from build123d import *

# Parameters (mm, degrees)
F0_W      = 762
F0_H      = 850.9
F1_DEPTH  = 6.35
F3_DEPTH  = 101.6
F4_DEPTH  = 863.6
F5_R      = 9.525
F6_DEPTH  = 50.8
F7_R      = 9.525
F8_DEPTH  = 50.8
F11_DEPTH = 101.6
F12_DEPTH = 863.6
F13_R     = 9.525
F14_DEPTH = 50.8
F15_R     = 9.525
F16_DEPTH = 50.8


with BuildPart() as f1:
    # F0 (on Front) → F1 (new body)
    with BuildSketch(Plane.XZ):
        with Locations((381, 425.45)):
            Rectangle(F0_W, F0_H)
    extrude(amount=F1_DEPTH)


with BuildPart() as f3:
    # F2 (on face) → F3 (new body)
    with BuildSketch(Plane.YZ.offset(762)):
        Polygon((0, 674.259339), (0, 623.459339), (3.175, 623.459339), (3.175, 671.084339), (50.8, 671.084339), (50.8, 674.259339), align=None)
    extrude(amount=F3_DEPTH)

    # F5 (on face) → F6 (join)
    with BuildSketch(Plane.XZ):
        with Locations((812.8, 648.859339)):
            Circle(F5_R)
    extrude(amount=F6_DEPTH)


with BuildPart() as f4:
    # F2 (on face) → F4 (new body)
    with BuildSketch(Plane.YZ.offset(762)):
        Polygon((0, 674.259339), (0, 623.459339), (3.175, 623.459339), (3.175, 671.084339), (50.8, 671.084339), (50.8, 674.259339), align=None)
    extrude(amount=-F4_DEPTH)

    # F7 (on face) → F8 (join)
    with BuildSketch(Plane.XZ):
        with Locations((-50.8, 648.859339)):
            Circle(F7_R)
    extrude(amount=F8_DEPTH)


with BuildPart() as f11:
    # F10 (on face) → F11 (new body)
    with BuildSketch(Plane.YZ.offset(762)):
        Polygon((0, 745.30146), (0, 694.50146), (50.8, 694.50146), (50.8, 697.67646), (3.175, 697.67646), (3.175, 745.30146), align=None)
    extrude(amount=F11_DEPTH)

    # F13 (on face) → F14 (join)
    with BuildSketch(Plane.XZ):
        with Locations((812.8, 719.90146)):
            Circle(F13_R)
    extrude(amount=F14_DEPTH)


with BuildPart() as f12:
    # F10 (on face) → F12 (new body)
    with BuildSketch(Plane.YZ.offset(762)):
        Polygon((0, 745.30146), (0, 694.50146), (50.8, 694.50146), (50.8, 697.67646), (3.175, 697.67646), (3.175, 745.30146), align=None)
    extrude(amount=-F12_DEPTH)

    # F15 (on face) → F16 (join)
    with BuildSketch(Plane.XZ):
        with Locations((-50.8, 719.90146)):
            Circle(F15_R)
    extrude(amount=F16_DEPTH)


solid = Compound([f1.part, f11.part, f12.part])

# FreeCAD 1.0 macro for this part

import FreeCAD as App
import Part
import Sketcher

V = App.Vector
Q = App.Units.Quantity

doc = App.newDocument("Part")
body = doc.addObject("PartDesign::Body", "Body")

sketch1 = doc.addObject("Sketcher::SketchObject", "Sketch")
body.addObject(sketch1)
sketch1.AttachmentSupport = (doc.XZ_Plane, [""])
sketch1.MapMode = "FlatFace"
sketch1.addGeometry(Part.LineSegment(V(0, 851, 0), V(0, 0, 0)), False)
sketch1.addGeometry(Part.LineSegment(V(0, 0, 0), V(762, 0, 0)), False)
sketch1.addGeometry(Part.LineSegment(V(762, 0, 0), V(762, 851, 0)), False)
sketch1.addGeometry(Part.LineSegment(V(762, 851, 0), V(0, 851, 0)), False)
sketch1.addConstraint(Sketcher.Constraint("Coincident", 0, 2, 1, 1))
sketch1.addConstraint(Sketcher.Constraint("Coincident", 1, 2, 2, 1))
sketch1.addConstraint(Sketcher.Constraint("Coincident", 2, 2, 3, 1))
sketch1.addConstraint(Sketcher.Constraint("Coincident", 3, 2, 0, 1))
sketch1.addConstraint(Sketcher.Constraint("Vertical", 0))
sketch1.addConstraint(Sketcher.Constraint("Horizontal", 1))
sketch1.addConstraint(Sketcher.Constraint("Vertical", 2))
sketch1.addConstraint(Sketcher.Constraint("Horizontal", 3))
sketch1.addConstraint(Sketcher.Constraint("Coincident", 0, 2, -1, 1))
sketch1.addConstraint(Sketcher.Constraint("DistanceX", 1, 1, 1, 2, Q("30 in")))
sketch1.addConstraint(Sketcher.Constraint("DistanceY", 0, 2, 0, 1, Q("33.5 in")))
pad1 = doc.addObject("PartDesign::Pad", "Pad")
body.addObject(pad1)
pad1.Profile = sketch1
pad1.Length = Q("0.25 in")
body2 = doc.addObject("PartDesign::Body", "Body001")

sketch2 = doc.addObject("Sketcher::SketchObject", "Sketch001")
body2.addObject(sketch2)
sketch2.AttachmentSupport = (doc.getObject("YZ_Plane001"), [""])
sketch2.MapMode = "FlatFace"
sketch2.AttachmentOffset = App.Placement(V(0, 0, 30 * 25.4), App.Rotation())
sketch2.addGeometry(Part.LineSegment(V(0, 674.3, 0), V(0, 623.5, 0)), False)
sketch2.addGeometry(Part.LineSegment(V(0, 623.5, 0), V(3.2, 623.5, 0)), False)
sketch2.addGeometry(Part.LineSegment(V(3.2, 623.5, 0), V(3.2, 671.1, 0)), False)
sketch2.addGeometry(Part.LineSegment(V(3.2, 671.1, 0), V(50.8, 671.1, 0)), False)
sketch2.addGeometry(Part.LineSegment(V(50.8, 671.1, 0), V(50.8, 674.3, 0)), False)
sketch2.addGeometry(Part.LineSegment(V(50.8, 674.3, 0), V(0, 674.3, 0)), False)
sketch2.addConstraint(Sketcher.Constraint("Coincident", 0, 2, 1, 1))
sketch2.addConstraint(Sketcher.Constraint("Coincident", 1, 2, 2, 1))
sketch2.addConstraint(Sketcher.Constraint("Coincident", 2, 2, 3, 1))
sketch2.addConstraint(Sketcher.Constraint("Coincident", 3, 2, 4, 1))
sketch2.addConstraint(Sketcher.Constraint("Coincident", 4, 2, 5, 1))
sketch2.addConstraint(Sketcher.Constraint("Coincident", 5, 2, 0, 1))
sketch2.addConstraint(Sketcher.Constraint("Vertical", 0))
sketch2.addConstraint(Sketcher.Constraint("Horizontal", 1))
sketch2.addConstraint(Sketcher.Constraint("Vertical", 2))
sketch2.addConstraint(Sketcher.Constraint("Horizontal", 3))
sketch2.addConstraint(Sketcher.Constraint("Vertical", 4))
sketch2.addConstraint(Sketcher.Constraint("Horizontal", 5))
sketch2.addConstraint(Sketcher.Constraint("PointOnObject", 0, 2, -2))
sketch2.addConstraint(Sketcher.Constraint("Equal", 5, 0))
sketch2.addConstraint(Sketcher.Constraint("Equal", 3, 2))
sketch2.addConstraint(Sketcher.Constraint("DistanceX", 5, 2, 5, 1, Q("2 in")))
sketch2.addConstraint(Sketcher.Constraint("DistanceX", 1, 1, 1, 2, Q("0.125 in")))
sketch2.addConstraint(Sketcher.Constraint("DistanceY", -1, 1, 0, 2, 623.459339))
pad2 = doc.addObject("PartDesign::Pad", "Pad001")
body2.addObject(pad2)
pad2.Profile = sketch2
pad2.Length = Q("4 in")

sketch3 = doc.addObject("Sketcher::SketchObject", "Sketch002")
body2.addObject(sketch3)
sketch3.AttachmentSupport = (doc.getObject("XZ_Plane001"), [""])
sketch3.MapMode = "FlatFace"
sketch3.addGeometry(Part.Circle(V(813, 649, 0), V(0, 0, 1), 10), False)
sketch3.addConstraint(Sketcher.Constraint("Diameter", 0, Q("0.75 in")))
sketch3.addConstraint(Sketcher.Constraint("DistanceX", -1, 1, 0, 3, Q("32 in")))
sketch3.addConstraint(Sketcher.Constraint("DistanceY", -1, 1, 0, 3, 648.859339))
pad3 = doc.addObject("PartDesign::Pad", "Pad002")
body2.addObject(pad3)
pad3.Profile = sketch3
pad3.Length = Q("2 in")
body3 = doc.addObject("PartDesign::Body", "Body002")

sketch4 = doc.addObject("Sketcher::SketchObject", "Sketch003")
body3.addObject(sketch4)
sketch4.AttachmentSupport = (doc.getObject("YZ_Plane002"), [""])
sketch4.MapMode = "FlatFace"
sketch4.AttachmentOffset = App.Placement(V(0, 0, 30 * 25.4), App.Rotation())
sketch4.addGeometry(Part.LineSegment(V(0, 674.3, 0), V(0, 623.5, 0)), False)
sketch4.addGeometry(Part.LineSegment(V(0, 623.5, 0), V(3.2, 623.5, 0)), False)
sketch4.addGeometry(Part.LineSegment(V(3.2, 623.5, 0), V(3.2, 671.1, 0)), False)
sketch4.addGeometry(Part.LineSegment(V(3.2, 671.1, 0), V(50.8, 671.1, 0)), False)
sketch4.addGeometry(Part.LineSegment(V(50.8, 671.1, 0), V(50.8, 674.3, 0)), False)
sketch4.addGeometry(Part.LineSegment(V(50.8, 674.3, 0), V(0, 674.3, 0)), False)
sketch4.addConstraint(Sketcher.Constraint("Coincident", 0, 2, 1, 1))
sketch4.addConstraint(Sketcher.Constraint("Coincident", 1, 2, 2, 1))
sketch4.addConstraint(Sketcher.Constraint("Coincident", 2, 2, 3, 1))
sketch4.addConstraint(Sketcher.Constraint("Coincident", 3, 2, 4, 1))
sketch4.addConstraint(Sketcher.Constraint("Coincident", 4, 2, 5, 1))
sketch4.addConstraint(Sketcher.Constraint("Coincident", 5, 2, 0, 1))
sketch4.addConstraint(Sketcher.Constraint("Vertical", 0))
sketch4.addConstraint(Sketcher.Constraint("Horizontal", 1))
sketch4.addConstraint(Sketcher.Constraint("Vertical", 2))
sketch4.addConstraint(Sketcher.Constraint("Horizontal", 3))
sketch4.addConstraint(Sketcher.Constraint("Vertical", 4))
sketch4.addConstraint(Sketcher.Constraint("Horizontal", 5))
sketch4.addConstraint(Sketcher.Constraint("PointOnObject", 0, 2, -2))
sketch4.addConstraint(Sketcher.Constraint("Equal", 5, 0))
sketch4.addConstraint(Sketcher.Constraint("Equal", 3, 2))
sketch4.addConstraint(Sketcher.Constraint("DistanceX", 5, 2, 5, 1, Q("2 in")))
sketch4.addConstraint(Sketcher.Constraint("DistanceX", 1, 1, 1, 2, Q("0.125 in")))
sketch4.addConstraint(Sketcher.Constraint("DistanceY", -1, 1, 0, 2, 623.459339))
pad4 = doc.addObject("PartDesign::Pad", "Pad003")
body3.addObject(pad4)
pad4.Profile = sketch4
pad4.Length = Q("34 in")
pad4.Reversed = True

sketch5 = doc.addObject("Sketcher::SketchObject", "Sketch004")
body3.addObject(sketch5)
sketch5.AttachmentSupport = (doc.getObject("XZ_Plane002"), [""])
sketch5.MapMode = "FlatFace"
sketch5.addGeometry(Part.Circle(V(-51, 649, 0), V(0, 0, 1), 10), False)
sketch5.addConstraint(Sketcher.Constraint("Diameter", 0, Q("0.75 in")))
sketch5.addConstraint(Sketcher.Constraint("DistanceX", 0, 3, -1, 1, Q("2 in")))
sketch5.addConstraint(Sketcher.Constraint("DistanceY", -1, 1, 0, 3, 648.859339))
pad5 = doc.addObject("PartDesign::Pad", "Pad004")
body3.addObject(pad5)
pad5.Profile = sketch5
pad5.Length = Q("2 in")
body4 = doc.addObject("PartDesign::Body", "Body003")

sketch6 = doc.addObject("Sketcher::SketchObject", "Sketch005")
body4.addObject(sketch6)
sketch6.AttachmentSupport = (doc.getObject("YZ_Plane003"), [""])
sketch6.MapMode = "FlatFace"
sketch6.AttachmentOffset = App.Placement(V(0, 0, 30 * 25.4), App.Rotation())
sketch6.addGeometry(Part.LineSegment(V(0, 745.3, 0), V(0, 694.5, 0)), False)
sketch6.addGeometry(Part.LineSegment(V(0, 694.5, 0), V(50.8, 694.5, 0)), False)
sketch6.addGeometry(Part.LineSegment(V(50.8, 694.5, 0), V(50.8, 697.7, 0)), False)
sketch6.addGeometry(Part.LineSegment(V(50.8, 697.7, 0), V(3.2, 697.7, 0)), False)
sketch6.addGeometry(Part.LineSegment(V(3.2, 697.7, 0), V(3.2, 745.3, 0)), False)
sketch6.addGeometry(Part.LineSegment(V(3.2, 745.3, 0), V(0, 745.3, 0)), False)
sketch6.addConstraint(Sketcher.Constraint("Coincident", 0, 2, 1, 1))
sketch6.addConstraint(Sketcher.Constraint("Coincident", 1, 2, 2, 1))
sketch6.addConstraint(Sketcher.Constraint("Coincident", 2, 2, 3, 1))
sketch6.addConstraint(Sketcher.Constraint("Coincident", 3, 2, 4, 1))
sketch6.addConstraint(Sketcher.Constraint("Coincident", 4, 2, 5, 1))
sketch6.addConstraint(Sketcher.Constraint("Coincident", 5, 2, 0, 1))
sketch6.addConstraint(Sketcher.Constraint("Vertical", 0))
sketch6.addConstraint(Sketcher.Constraint("Horizontal", 1))
sketch6.addConstraint(Sketcher.Constraint("Vertical", 2))
sketch6.addConstraint(Sketcher.Constraint("Horizontal", 3))
sketch6.addConstraint(Sketcher.Constraint("Vertical", 4))
sketch6.addConstraint(Sketcher.Constraint("Horizontal", 5))
sketch6.addConstraint(Sketcher.Constraint("PointOnObject", 0, 2, -2))
sketch6.addConstraint(Sketcher.Constraint("Equal", 1, 0))
sketch6.addConstraint(Sketcher.Constraint("Equal", 5, 2))
sketch6.addConstraint(Sketcher.Constraint("DistanceX", 1, 1, 1, 2, Q("2 in")))
sketch6.addConstraint(Sketcher.Constraint("DistanceX", 3, 2, 3, 1, Q("1.875 in")))
sketch6.addConstraint(Sketcher.Constraint("DistanceY", -1, 1, 0, 2, 694.50146))
pad6 = doc.addObject("PartDesign::Pad", "Pad005")
body4.addObject(pad6)
pad6.Profile = sketch6
pad6.Length = Q("4 in")

sketch7 = doc.addObject("Sketcher::SketchObject", "Sketch006")
body4.addObject(sketch7)
sketch7.AttachmentSupport = (doc.getObject("XZ_Plane003"), [""])
sketch7.MapMode = "FlatFace"
sketch7.addGeometry(Part.Circle(V(813, 720, 0), V(0, 0, 1), 10), False)
sketch7.addConstraint(Sketcher.Constraint("Diameter", 0, Q("0.75 in")))
sketch7.addConstraint(Sketcher.Constraint("DistanceX", -1, 1, 0, 3, Q("32 in")))
sketch7.addConstraint(Sketcher.Constraint("DistanceY", -1, 1, 0, 3, 719.90146))
pad7 = doc.addObject("PartDesign::Pad", "Pad006")
body4.addObject(pad7)
pad7.Profile = sketch7
pad7.Length = Q("2 in")
body5 = doc.addObject("PartDesign::Body", "Body004")

sketch8 = doc.addObject("Sketcher::SketchObject", "Sketch007")
body5.addObject(sketch8)
sketch8.AttachmentSupport = (doc.getObject("YZ_Plane004"), [""])
sketch8.MapMode = "FlatFace"
sketch8.AttachmentOffset = App.Placement(V(0, 0, 30 * 25.4), App.Rotation())
sketch8.addGeometry(Part.LineSegment(V(0, 745.3, 0), V(0, 694.5, 0)), False)
sketch8.addGeometry(Part.LineSegment(V(0, 694.5, 0), V(50.8, 694.5, 0)), False)
sketch8.addGeometry(Part.LineSegment(V(50.8, 694.5, 0), V(50.8, 697.7, 0)), False)
sketch8.addGeometry(Part.LineSegment(V(50.8, 697.7, 0), V(3.2, 697.7, 0)), False)
sketch8.addGeometry(Part.LineSegment(V(3.2, 697.7, 0), V(3.2, 745.3, 0)), False)
sketch8.addGeometry(Part.LineSegment(V(3.2, 745.3, 0), V(0, 745.3, 0)), False)
sketch8.addConstraint(Sketcher.Constraint("Coincident", 0, 2, 1, 1))
sketch8.addConstraint(Sketcher.Constraint("Coincident", 1, 2, 2, 1))
sketch8.addConstraint(Sketcher.Constraint("Coincident", 2, 2, 3, 1))
sketch8.addConstraint(Sketcher.Constraint("Coincident", 3, 2, 4, 1))
sketch8.addConstraint(Sketcher.Constraint("Coincident", 4, 2, 5, 1))
sketch8.addConstraint(Sketcher.Constraint("Coincident", 5, 2, 0, 1))
sketch8.addConstraint(Sketcher.Constraint("Vertical", 0))
sketch8.addConstraint(Sketcher.Constraint("Horizontal", 1))
sketch8.addConstraint(Sketcher.Constraint("Vertical", 2))
sketch8.addConstraint(Sketcher.Constraint("Horizontal", 3))
sketch8.addConstraint(Sketcher.Constraint("Vertical", 4))
sketch8.addConstraint(Sketcher.Constraint("Horizontal", 5))
sketch8.addConstraint(Sketcher.Constraint("PointOnObject", 0, 2, -2))
sketch8.addConstraint(Sketcher.Constraint("Equal", 1, 0))
sketch8.addConstraint(Sketcher.Constraint("Equal", 5, 2))
sketch8.addConstraint(Sketcher.Constraint("DistanceX", 1, 1, 1, 2, Q("2 in")))
sketch8.addConstraint(Sketcher.Constraint("DistanceX", 3, 2, 3, 1, Q("1.875 in")))
sketch8.addConstraint(Sketcher.Constraint("DistanceY", -1, 1, 0, 2, 694.50146))
pad8 = doc.addObject("PartDesign::Pad", "Pad007")
body5.addObject(pad8)
pad8.Profile = sketch8
pad8.Length = Q("34 in")
pad8.Reversed = True

sketch9 = doc.addObject("Sketcher::SketchObject", "Sketch008")
body5.addObject(sketch9)
sketch9.AttachmentSupport = (doc.getObject("XZ_Plane004"), [""])
sketch9.MapMode = "FlatFace"
sketch9.addGeometry(Part.Circle(V(-51, 720, 0), V(0, 0, 1), 10), False)
sketch9.addConstraint(Sketcher.Constraint("Diameter", 0, Q("0.75 in")))
sketch9.addConstraint(Sketcher.Constraint("DistanceX", 0, 3, -1, 1, Q("2 in")))
sketch9.addConstraint(Sketcher.Constraint("DistanceY", -1, 1, 0, 3, 719.90146))
pad9 = doc.addObject("PartDesign::Pad", "Pad008")
body5.addObject(pad9)
pad9.Profile = sketch9
pad9.Length = Q("2 in")
body2.Visibility = False
body3.Visibility = False

doc.recompute()
